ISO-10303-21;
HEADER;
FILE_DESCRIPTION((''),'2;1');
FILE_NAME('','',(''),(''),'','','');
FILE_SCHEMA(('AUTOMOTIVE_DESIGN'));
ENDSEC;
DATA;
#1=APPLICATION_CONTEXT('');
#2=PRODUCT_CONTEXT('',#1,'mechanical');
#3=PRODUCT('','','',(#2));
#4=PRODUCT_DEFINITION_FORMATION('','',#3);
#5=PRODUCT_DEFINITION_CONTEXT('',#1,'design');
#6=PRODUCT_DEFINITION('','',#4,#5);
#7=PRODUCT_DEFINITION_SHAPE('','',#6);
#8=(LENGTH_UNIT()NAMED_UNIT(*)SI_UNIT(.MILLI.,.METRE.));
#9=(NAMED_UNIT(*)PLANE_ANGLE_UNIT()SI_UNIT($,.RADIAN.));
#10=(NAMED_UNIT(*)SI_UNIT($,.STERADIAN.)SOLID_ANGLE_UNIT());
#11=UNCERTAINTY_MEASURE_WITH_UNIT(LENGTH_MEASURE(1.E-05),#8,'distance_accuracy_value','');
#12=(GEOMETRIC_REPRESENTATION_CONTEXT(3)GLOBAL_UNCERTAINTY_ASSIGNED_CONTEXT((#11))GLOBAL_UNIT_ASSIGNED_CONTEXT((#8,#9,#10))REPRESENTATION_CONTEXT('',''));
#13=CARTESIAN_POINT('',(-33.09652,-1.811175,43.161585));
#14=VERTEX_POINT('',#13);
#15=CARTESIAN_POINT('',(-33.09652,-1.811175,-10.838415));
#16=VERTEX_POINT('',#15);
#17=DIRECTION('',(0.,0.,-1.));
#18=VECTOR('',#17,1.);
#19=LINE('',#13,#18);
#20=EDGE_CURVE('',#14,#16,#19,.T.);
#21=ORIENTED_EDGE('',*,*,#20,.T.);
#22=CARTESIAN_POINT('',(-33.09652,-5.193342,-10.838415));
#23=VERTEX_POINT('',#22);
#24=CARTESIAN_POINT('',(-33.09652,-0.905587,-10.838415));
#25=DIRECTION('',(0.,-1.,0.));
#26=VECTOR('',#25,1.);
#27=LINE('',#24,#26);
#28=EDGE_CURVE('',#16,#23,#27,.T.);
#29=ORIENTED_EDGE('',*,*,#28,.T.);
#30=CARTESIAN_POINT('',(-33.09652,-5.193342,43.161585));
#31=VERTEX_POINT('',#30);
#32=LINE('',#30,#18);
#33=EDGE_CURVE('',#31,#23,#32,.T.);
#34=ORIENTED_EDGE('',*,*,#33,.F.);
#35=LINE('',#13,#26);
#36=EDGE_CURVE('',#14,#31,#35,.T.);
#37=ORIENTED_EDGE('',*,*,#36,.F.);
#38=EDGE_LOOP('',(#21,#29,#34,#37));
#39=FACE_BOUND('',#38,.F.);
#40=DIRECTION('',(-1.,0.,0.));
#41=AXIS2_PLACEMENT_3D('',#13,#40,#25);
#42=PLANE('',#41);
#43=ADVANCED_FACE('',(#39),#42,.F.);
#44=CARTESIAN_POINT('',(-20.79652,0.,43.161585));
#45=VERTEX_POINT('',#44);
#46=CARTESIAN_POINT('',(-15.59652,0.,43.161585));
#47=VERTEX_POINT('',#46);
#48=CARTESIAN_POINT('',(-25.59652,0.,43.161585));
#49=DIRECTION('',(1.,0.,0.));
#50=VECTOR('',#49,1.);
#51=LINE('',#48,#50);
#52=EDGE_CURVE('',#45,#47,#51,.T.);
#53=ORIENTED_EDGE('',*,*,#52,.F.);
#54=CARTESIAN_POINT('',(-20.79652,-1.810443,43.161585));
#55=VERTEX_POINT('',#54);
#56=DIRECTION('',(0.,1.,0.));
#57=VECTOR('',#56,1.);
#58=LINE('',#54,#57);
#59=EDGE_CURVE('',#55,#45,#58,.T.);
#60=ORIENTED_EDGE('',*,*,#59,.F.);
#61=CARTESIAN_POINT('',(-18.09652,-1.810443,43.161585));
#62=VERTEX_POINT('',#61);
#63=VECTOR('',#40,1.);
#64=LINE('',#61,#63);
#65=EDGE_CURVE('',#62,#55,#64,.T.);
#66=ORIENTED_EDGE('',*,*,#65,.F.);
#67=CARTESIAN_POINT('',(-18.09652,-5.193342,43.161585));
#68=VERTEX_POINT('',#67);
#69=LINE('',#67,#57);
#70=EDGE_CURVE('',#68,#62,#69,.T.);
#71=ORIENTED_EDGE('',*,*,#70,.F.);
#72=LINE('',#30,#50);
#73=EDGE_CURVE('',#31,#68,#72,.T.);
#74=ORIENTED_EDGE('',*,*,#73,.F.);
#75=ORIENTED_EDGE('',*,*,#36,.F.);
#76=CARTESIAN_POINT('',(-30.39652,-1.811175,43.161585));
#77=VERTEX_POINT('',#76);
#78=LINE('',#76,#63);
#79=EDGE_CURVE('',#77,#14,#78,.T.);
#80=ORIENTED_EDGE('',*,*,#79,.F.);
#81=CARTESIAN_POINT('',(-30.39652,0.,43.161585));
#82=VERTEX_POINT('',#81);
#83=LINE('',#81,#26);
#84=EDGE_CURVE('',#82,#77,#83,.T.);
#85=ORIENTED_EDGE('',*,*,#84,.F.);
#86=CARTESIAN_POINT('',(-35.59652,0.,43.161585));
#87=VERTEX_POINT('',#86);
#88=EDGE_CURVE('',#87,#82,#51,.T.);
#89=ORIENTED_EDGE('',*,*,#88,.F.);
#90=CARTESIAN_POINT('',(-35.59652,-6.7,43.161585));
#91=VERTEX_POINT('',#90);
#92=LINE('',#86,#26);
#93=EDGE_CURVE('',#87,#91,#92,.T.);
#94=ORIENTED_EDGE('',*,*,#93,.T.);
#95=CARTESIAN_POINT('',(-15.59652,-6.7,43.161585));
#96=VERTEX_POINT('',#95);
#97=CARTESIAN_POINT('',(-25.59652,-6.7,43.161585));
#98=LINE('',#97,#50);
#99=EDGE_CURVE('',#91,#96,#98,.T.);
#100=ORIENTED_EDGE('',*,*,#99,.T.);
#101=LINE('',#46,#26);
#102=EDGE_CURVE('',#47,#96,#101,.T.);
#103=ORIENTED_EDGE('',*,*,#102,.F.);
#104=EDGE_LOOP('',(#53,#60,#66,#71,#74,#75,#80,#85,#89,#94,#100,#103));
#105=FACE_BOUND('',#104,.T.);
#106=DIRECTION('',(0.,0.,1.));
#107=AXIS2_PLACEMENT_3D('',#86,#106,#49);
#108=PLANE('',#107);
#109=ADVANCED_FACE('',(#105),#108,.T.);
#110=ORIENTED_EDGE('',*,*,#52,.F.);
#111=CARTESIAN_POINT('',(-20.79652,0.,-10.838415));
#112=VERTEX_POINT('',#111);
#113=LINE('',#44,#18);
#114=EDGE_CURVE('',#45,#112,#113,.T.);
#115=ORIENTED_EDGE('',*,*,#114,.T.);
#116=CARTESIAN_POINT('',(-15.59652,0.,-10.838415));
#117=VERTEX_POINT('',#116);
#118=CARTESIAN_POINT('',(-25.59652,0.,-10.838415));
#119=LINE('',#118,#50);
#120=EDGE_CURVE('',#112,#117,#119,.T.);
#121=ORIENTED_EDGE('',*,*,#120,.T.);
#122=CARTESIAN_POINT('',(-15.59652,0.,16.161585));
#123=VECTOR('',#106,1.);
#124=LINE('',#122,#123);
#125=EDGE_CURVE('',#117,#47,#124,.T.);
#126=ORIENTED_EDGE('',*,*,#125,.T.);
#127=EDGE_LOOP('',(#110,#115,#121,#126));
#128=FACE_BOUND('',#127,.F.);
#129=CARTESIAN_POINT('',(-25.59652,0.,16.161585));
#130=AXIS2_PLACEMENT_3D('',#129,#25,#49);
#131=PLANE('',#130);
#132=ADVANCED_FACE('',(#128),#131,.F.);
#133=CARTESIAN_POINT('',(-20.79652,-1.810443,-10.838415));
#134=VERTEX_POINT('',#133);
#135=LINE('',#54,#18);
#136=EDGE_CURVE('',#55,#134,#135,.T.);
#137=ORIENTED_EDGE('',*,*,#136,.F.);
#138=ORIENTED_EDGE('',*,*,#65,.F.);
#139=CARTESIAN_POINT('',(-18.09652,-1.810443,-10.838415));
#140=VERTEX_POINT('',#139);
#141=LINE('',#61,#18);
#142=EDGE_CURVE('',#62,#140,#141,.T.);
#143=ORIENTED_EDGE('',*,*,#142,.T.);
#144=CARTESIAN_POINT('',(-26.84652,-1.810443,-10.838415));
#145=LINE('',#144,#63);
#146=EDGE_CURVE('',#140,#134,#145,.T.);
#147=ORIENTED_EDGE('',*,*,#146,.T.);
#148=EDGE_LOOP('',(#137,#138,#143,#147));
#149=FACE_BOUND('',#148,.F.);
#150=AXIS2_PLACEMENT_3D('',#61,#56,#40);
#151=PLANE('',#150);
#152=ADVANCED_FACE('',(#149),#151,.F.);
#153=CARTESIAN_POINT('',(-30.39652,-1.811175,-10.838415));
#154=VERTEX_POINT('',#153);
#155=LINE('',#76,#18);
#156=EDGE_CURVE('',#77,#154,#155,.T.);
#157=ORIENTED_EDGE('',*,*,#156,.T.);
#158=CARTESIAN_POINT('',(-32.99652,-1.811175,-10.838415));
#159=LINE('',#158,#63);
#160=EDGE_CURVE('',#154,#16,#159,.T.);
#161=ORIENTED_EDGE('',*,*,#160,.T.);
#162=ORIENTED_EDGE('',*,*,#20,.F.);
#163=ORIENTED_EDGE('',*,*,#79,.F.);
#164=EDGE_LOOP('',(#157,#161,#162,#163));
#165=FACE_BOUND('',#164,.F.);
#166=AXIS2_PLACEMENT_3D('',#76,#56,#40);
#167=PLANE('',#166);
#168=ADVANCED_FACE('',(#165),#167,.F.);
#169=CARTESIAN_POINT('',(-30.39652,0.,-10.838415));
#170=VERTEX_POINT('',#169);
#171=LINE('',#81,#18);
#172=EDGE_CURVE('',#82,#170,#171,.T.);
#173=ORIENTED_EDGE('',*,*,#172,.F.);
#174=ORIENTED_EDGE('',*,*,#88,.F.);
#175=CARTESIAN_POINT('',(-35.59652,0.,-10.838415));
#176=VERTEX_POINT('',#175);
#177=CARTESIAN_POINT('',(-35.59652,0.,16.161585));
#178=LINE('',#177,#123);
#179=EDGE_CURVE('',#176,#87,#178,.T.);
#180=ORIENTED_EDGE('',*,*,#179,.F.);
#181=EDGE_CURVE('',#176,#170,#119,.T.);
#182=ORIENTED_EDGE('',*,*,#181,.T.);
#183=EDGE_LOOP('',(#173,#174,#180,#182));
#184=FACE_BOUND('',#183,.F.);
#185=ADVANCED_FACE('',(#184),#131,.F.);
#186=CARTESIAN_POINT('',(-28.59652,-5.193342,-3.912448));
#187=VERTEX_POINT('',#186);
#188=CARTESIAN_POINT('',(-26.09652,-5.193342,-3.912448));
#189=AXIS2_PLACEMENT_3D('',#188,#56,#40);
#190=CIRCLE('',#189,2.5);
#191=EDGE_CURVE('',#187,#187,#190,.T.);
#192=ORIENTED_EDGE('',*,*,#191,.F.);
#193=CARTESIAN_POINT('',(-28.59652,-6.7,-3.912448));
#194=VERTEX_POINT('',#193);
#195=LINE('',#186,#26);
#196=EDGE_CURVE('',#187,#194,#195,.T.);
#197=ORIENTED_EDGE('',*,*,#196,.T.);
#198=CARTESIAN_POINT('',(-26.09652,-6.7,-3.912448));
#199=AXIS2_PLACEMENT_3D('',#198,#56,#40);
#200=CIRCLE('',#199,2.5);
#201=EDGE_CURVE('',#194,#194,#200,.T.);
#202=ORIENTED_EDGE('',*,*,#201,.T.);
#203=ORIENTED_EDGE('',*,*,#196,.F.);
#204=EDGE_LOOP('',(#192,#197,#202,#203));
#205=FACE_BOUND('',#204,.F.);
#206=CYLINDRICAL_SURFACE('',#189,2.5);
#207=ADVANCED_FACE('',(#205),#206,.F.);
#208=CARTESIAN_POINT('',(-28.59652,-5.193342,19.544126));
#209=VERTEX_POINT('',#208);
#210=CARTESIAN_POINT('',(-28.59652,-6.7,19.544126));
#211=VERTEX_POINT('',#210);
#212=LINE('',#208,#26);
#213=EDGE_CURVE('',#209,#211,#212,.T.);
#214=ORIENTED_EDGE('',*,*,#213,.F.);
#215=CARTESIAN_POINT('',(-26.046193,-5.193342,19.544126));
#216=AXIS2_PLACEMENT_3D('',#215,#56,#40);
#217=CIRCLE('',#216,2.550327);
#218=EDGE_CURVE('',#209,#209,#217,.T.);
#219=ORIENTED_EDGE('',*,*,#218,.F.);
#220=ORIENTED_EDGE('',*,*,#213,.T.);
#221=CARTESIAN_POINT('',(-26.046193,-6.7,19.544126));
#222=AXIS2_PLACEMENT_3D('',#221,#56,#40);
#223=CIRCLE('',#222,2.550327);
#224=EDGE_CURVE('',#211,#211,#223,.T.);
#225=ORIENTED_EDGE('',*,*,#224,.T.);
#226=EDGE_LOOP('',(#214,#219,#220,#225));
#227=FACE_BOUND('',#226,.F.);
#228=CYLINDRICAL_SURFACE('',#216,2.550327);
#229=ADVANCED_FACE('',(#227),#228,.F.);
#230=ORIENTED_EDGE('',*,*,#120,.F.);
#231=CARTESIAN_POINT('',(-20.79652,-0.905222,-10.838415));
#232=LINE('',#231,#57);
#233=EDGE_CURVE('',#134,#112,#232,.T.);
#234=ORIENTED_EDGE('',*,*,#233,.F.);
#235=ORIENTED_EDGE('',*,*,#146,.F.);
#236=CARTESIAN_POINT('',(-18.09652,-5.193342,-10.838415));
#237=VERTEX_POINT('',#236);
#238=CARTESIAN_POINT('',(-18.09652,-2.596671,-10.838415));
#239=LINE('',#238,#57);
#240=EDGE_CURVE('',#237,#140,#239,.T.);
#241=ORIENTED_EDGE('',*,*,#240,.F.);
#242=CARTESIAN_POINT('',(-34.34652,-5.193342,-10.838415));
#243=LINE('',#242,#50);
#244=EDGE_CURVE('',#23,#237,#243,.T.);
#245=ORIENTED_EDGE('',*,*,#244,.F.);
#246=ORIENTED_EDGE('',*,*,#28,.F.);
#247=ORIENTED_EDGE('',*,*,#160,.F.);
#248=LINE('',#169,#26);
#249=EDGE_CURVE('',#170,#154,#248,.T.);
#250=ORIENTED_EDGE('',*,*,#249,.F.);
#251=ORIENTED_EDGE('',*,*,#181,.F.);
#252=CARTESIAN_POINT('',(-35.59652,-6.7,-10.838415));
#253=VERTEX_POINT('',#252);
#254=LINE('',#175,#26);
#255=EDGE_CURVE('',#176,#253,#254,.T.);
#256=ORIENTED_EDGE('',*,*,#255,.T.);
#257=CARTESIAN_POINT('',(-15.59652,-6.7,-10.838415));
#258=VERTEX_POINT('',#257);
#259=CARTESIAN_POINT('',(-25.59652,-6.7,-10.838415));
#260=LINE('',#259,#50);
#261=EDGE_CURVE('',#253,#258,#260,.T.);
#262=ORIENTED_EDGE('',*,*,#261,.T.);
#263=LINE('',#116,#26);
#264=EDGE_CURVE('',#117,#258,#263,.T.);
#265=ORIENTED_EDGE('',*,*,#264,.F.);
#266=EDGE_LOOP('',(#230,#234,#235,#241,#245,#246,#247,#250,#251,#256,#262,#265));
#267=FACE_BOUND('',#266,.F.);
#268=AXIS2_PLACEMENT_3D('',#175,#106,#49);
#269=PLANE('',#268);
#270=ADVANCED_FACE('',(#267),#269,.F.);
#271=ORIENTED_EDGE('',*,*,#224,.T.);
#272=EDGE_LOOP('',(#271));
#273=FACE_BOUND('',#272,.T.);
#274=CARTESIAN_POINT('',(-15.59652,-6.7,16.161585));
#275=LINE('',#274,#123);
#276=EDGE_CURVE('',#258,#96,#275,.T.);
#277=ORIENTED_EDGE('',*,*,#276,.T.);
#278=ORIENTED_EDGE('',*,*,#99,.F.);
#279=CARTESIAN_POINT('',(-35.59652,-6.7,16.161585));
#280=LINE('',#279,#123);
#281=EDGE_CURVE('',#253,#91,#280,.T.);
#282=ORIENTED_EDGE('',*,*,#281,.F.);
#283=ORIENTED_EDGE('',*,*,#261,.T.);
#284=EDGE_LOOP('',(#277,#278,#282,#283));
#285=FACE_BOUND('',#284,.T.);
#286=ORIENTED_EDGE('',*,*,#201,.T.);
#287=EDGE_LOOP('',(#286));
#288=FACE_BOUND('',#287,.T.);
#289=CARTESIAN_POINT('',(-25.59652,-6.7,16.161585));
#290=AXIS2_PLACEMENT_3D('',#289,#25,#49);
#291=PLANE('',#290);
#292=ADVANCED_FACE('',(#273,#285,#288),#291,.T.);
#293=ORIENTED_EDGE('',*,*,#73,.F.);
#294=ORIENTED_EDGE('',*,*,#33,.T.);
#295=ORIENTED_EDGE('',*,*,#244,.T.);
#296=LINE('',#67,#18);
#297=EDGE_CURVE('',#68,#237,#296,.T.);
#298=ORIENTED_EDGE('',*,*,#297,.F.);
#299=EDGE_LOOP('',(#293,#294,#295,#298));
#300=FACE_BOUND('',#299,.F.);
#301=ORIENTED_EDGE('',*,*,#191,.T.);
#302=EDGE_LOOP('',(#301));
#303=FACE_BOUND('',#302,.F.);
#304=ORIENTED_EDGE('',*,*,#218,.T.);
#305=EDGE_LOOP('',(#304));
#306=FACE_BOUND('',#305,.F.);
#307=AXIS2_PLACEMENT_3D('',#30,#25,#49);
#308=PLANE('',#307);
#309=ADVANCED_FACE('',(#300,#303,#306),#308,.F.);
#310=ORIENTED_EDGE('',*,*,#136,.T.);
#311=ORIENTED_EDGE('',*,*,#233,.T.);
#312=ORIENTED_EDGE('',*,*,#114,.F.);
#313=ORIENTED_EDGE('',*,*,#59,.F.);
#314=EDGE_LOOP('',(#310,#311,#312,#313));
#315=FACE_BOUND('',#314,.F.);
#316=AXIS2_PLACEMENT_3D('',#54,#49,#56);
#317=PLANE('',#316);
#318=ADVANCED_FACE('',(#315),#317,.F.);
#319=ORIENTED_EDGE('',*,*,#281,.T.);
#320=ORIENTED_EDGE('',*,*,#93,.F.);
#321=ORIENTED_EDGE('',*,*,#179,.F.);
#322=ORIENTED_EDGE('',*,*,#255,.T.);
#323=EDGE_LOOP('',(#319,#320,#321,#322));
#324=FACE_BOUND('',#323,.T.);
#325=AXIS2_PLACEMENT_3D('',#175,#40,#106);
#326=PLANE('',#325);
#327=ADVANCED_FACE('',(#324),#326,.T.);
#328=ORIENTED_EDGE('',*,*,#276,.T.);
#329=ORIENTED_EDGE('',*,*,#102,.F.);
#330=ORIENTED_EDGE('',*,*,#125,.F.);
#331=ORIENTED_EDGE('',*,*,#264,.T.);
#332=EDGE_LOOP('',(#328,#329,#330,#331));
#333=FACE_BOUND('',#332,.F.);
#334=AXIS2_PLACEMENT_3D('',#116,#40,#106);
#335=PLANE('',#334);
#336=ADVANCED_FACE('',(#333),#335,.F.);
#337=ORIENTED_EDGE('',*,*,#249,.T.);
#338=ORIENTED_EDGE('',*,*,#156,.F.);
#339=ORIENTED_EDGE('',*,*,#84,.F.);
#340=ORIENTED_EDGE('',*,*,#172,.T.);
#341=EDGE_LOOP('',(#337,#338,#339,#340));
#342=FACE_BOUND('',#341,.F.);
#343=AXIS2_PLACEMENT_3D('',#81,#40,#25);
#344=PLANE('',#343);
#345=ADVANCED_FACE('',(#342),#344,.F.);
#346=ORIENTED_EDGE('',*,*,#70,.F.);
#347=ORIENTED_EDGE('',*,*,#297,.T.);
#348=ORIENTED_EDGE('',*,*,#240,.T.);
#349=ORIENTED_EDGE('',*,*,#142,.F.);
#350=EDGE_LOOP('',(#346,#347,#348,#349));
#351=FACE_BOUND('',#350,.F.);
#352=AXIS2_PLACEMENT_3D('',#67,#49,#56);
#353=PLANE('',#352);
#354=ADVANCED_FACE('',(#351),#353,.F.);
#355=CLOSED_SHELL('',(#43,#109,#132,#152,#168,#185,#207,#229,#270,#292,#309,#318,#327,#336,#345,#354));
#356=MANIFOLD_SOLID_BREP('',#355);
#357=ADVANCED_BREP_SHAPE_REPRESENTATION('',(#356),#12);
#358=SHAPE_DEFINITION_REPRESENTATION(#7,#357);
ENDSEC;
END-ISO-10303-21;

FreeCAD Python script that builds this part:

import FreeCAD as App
import Part
import Sketcher

doc = App.newDocument("Part")
params = doc.addObject("Spreadsheet::Sheet", "Params")
for row, (alias, value) in enumerate([
    ("sketch1_width", "20 mm"),
    ("sketch1_height", "54 mm"),
    ("pad1_length", "6.7 mm"),
    ("sketch2_width", "15 mm"),
    ("sketch2_width2", "9.6 mm"),
    ("pocket1_length", "67.5 mm"),
    ("sketch3_diameter", "5 mm"),
    ("pocket2_length", "25 mm"),
], start=1):
    params.set(f"A{row}", alias)
    params.set(f"B{row}", "=" + value)
    params.setAlias(f"B{row}", alias)

body = doc.addObject("PartDesign::Body", "Body")

sketch1 = doc.addObject("Sketcher::SketchObject", "Sketch")
body.addObject(sketch1)
sketch1.AttachmentSupport = (doc.XZ_Plane, [""])
sketch1.MapMode = "FlatFace"
sketch1.addGeometry(Part.LineSegment(App.Vector(-36, 43, 0), App.Vector(-36, -11, 0)), False)
sketch1.addGeometry(Part.LineSegment(App.Vector(-36, -11, 0), App.Vector(-16, -11, 0)), False)
sketch1.addGeometry(Part.LineSegment(App.Vector(-16, -11, 0), App.Vector(-16, 43, 0)), False)
sketch1.addGeometry(Part.LineSegment(App.Vector(-16, 43, 0), App.Vector(-36, 43, 0)), False)
sketch1.addConstraint(Sketcher.Constraint("Coincident", 0, 2, 1, 1))
sketch1.addConstraint(Sketcher.Constraint("Coincident", 1, 2, 2, 1))
sketch1.addConstraint(Sketcher.Constraint("Coincident", 2, 2, 3, 1))
sketch1.addConstraint(Sketcher.Constraint("Coincident", 3, 2, 0, 1))
sketch1.addConstraint(Sketcher.Constraint("Vertical", 0))
sketch1.addConstraint(Sketcher.Constraint("Horizontal", 1))
sketch1.addConstraint(Sketcher.Constraint("Vertical", 2))
sketch1.addConstraint(Sketcher.Constraint("Horizontal", 3))
sketch1.addConstraint(Sketcher.Constraint("DistanceX", 1, 1, 1, 2, 20.0))
sketch1.addConstraint(Sketcher.Constraint("DistanceY", 0, 2, 0, 1, 54.0))
sketch1.addConstraint(Sketcher.Constraint("DistanceX", 0, 2, -1, 1, 35.59652))
sketch1.addConstraint(Sketcher.Constraint("DistanceY", 0, 2, -1, 1, 10.838415))
sketch1.setExpression("Constraints[8]", "Params.sketch1_width")
sketch1.setExpression("Constraints[9]", "Params.sketch1_height")
pad1 = doc.addObject("PartDesign::Pad", "Pad")
body.addObject(pad1)
pad1.Profile = sketch1
pad1.setExpression("Length", "Params.pad1_length")

sketch2 = doc.addObject("Sketcher::SketchObject", "Sketch001")
body.addObject(sketch2)
sketch2.AttachmentSupport = (doc.XY_Plane, [""])
sketch2.MapMode = "FlatFace"
sketch2.AttachmentOffset = App.Placement(App.Vector(0, 0, 43.161585), App.Rotation())
sketch2.addGeometry(Part.LineSegment(App.Vector(-20.8, -1.8, 0), App.Vector(-20.8, 0, 0)), False)
sketch2.addGeometry(Part.LineSegment(App.Vector(-20.8, 0, 0), App.Vector(-30.4, 0, 0)), False)
sketch2.addGeometry(Part.LineSegment(App.Vector(-30.4, 0, 0), App.Vector(-30.4, -1.8, 0)), False)
sketch2.addGeometry(Part.LineSegment(App.Vector(-30.4, -1.8, 0), App.Vector(-33.1, -1.8, 0)), False)
sketch2.addGeometry(Part.LineSegment(App.Vector(-33.1, -1.8, 0), App.Vector(-33.1, -5.2, 0)), False)
sketch2.addGeometry(Part.LineSegment(App.Vector(-33.1, -5.2, 0), App.Vector(-18.1, -5.2, 0)), False)
sketch2.addGeometry(Part.LineSegment(App.Vector(-18.1, -5.2, 0), App.Vector(-18.1, -1.8, 0)), False)
sketch2.addGeometry(Part.LineSegment(App.Vector(-18.1, -1.8, 0), App.Vector(-20.8, -1.8, 0)), False)
sketch2.addConstraint(Sketcher.Constraint("Coincident", 0, 2, 1, 1))
sketch2.addConstraint(Sketcher.Constraint("Coincident", 1, 2, 2, 1))
sketch2.addConstraint(Sketcher.Constraint("Coincident", 2, 2, 3, 1))
sketch2.addConstraint(Sketcher.Constraint("Coincident", 3, 2, 4, 1))
sketch2.addConstraint(Sketcher.Constraint("Coincident", 4, 2, 5, 1))
sketch2.addConstraint(Sketcher.Constraint("Coincident", 5, 2, 6, 1))
sketch2.addConstraint(Sketcher.Constraint("Coincident", 6, 2, 7, 1))
sketch2.addConstraint(Sketcher.Constraint("Coincident", 7, 2, 0, 1))
sketch2.addConstraint(Sketcher.Constraint("Vertical", 0))
sketch2.addConstraint(Sketcher.Constraint("Horizontal", 1))
sketch2.addConstraint(Sketcher.Constraint("Vertical", 2))
sketch2.addConstraint(Sketcher.Constraint("Horizontal", 3))
sketch2.addConstraint(Sketcher.Constraint("Vertical", 4))
sketch2.addConstraint(Sketcher.Constraint("Horizontal", 5))
sketch2.addConstraint(Sketcher.Constraint("Vertical", 6))
sketch2.addConstraint(Sketcher.Constraint("Horizontal", 7))
sketch2.addConstraint(Sketcher.Constraint("PointOnObject", 0, 2, -1))
sketch2.addConstraint(Sketcher.Constraint("Equal", 3, 7))
sketch2.addConstraint(Sketcher.Constraint("DistanceX", 5, 1, 5, 2, 15.0))
sketch2.addConstraint(Sketcher.Constraint("DistanceX", 1, 2, 1, 1, 9.6))
sketch2.addConstraint(Sketcher.Constraint("DistanceY", 6, 1, 6, 2, 3.382899))
sketch2.addConstraint(Sketcher.Constraint("DistanceY", 0, 1, 0, 2, 1.810443))
sketch2.addConstraint(Sketcher.Constraint("DistanceY", 2, 2, 2, 1, 1.811175))
sketch2.addConstraint(Sketcher.Constraint("DistanceX", 0, 2, -1, 1, 20.79652))
sketch2.setExpression("Constraints[18]", "Params.sketch2_width")
sketch2.setExpression("Constraints[19]", "Params.sketch2_width2")
pocket1 = doc.addObject("PartDesign::Pocket", "Pocket")
body.addObject(pocket1)
pocket1.Profile = sketch2
pocket1.setExpression("Length", "Params.pocket1_length")

sketch3 = doc.addObject("Sketcher::SketchObject", "Sketch002")
body.addObject(sketch3)
sketch3.AttachmentSupport = (doc.XZ_Plane, [""])
sketch3.MapMode = "FlatFace"
sketch3.AttachmentOffset = App.Placement(App.Vector(0, 0, 5.193342), App.Rotation())
sketch3.addGeometry(Part.Circle(App.Vector(-26, 19.5, 0), App.Vector(0, 0, 1), 2.6), False)
sketch3.addGeometry(Part.Circle(App.Vector(-26.1, -3.9, 0), App.Vector(0, 0, 1), 2.5), False)
sketch3.addConstraint(Sketcher.Constraint("Diameter", 1, 5.0))
sketch3.addConstraint(Sketcher.Constraint("Diameter", 0, 5.100654))
sketch3.addConstraint(Sketcher.Constraint("DistanceX", 1, 3, -1, 1, 26.09652))
sketch3.addConstraint(Sketcher.Constraint("DistanceX", 0, 3, -1, 1, 26.046193))
sketch3.addConstraint(Sketcher.Constraint("DistanceY", -1, 1, 0, 3, 19.544126))
sketch3.addConstraint(Sketcher.Constraint("DistanceY", 1, 3, -1, 1, 3.912448))
sketch3.setExpression("Constraints[0]", "Params.sketch3_diameter")
pocket2 = doc.addObject("PartDesign::Pocket", "Pocket001")
body.addObject(pocket2)
pocket2.Profile = sketch3
pocket2.setExpression("Length", "Params.pocket2_length")
pocket2.Reversed = True

doc.recompute()
